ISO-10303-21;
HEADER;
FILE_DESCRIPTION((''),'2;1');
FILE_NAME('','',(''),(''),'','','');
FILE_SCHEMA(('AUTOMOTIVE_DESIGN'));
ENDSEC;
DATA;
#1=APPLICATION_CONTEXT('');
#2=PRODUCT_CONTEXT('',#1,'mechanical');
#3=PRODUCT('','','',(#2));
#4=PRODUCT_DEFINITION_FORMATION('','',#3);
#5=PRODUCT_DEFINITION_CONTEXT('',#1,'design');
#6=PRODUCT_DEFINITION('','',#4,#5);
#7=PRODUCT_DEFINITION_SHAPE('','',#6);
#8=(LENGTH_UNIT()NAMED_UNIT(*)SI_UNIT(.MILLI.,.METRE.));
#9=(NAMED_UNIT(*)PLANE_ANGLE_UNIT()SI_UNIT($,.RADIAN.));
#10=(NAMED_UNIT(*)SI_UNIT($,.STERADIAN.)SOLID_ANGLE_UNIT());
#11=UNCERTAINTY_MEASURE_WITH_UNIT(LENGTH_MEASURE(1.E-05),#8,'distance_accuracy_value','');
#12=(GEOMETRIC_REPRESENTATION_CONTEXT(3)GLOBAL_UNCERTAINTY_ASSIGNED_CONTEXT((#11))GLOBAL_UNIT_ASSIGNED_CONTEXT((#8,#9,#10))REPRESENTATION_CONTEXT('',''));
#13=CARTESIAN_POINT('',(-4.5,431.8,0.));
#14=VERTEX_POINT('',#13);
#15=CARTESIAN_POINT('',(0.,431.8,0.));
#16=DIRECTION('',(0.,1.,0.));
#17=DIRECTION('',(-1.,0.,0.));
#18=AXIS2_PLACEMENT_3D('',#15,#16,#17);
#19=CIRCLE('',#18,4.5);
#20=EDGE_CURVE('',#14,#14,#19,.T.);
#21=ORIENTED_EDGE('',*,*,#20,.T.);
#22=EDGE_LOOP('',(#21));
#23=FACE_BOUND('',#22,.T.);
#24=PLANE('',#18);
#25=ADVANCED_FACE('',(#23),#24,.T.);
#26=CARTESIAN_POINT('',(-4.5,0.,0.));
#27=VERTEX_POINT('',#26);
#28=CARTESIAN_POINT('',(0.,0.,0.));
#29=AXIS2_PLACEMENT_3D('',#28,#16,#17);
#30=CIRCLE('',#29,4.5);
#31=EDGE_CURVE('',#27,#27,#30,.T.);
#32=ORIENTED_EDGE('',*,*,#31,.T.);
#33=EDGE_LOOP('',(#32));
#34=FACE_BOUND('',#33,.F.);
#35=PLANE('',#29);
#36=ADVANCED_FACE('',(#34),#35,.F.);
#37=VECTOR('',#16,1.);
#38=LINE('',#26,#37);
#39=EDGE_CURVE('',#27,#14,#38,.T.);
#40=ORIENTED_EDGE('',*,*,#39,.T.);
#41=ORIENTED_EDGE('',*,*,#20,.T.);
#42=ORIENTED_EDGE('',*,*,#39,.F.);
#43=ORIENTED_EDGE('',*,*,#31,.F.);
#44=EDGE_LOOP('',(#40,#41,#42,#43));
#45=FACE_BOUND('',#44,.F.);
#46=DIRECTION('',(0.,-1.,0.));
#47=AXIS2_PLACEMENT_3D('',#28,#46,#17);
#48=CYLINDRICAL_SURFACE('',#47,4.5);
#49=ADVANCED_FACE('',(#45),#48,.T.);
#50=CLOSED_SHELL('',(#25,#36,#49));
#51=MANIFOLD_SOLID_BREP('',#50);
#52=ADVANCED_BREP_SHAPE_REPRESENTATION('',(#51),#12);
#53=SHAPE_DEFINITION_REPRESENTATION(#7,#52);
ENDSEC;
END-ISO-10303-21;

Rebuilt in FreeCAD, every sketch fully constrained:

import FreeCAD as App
import Part
import Sketcher

V = App.Vector
Q = App.Units.Quantity

doc = App.newDocument("Part")
body = doc.addObject("PartDesign::Body", "Body")

# Sketch on XZ plane
sketch1 = doc.addObject("Sketcher::SketchObject", "Sketch")
body.addObject(sketch1)
sketch1.AttachmentSupport = (doc.XZ_Plane, [""])
sketch1.MapMode = "FlatFace"
sketch1.addGeometry(Part.Circle(V(0, 0, 0), V(0, 0, 1), 4.5), False)
sketch1.addConstraint(Sketcher.Constraint("Coincident", 0, 3, -1, 1))
sketch1.addConstraint(Sketcher.Constraint("Diameter", 0, Q("9 mm")))
pad1 = doc.addObject("PartDesign::Pad", "Pad")
body.addObject(pad1)
pad1.Profile = sketch1
pad1.Length = 431.8
pad1.Reversed = True

doc.recompute()
